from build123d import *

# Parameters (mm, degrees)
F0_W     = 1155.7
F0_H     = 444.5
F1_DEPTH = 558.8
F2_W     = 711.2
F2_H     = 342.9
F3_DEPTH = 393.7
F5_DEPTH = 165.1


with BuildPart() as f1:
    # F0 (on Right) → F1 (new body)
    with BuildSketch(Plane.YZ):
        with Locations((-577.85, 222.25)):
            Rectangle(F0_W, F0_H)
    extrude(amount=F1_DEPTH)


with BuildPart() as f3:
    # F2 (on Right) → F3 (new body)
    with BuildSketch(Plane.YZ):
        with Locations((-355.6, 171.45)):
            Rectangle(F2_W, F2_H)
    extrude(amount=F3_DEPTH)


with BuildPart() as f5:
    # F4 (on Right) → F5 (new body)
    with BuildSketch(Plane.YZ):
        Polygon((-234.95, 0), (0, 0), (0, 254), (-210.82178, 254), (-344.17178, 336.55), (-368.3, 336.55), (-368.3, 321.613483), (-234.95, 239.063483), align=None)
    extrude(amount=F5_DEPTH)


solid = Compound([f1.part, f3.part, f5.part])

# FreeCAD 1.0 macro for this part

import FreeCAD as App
import Part
import Sketcher
Q = App.Units.Quantity


def add_polygon(sketch, points):
    """Adds a closed chain of lines whose ends are joined by coincident constraints."""
    first, n = sketch.GeometryCount, len(points)
    for a, b in zip(points, points[1:] + points[:1]):
        sketch.addGeometry(Part.LineSegment(App.Vector(*a, 0), App.Vector(*b, 0)), False)
    for i in range(n):
        sketch.addConstraint(Sketcher.Constraint("Coincident", first + i, 2, first + (i + 1) % n, 1))

doc = App.newDocument("Part")
body = doc.addObject("PartDesign::Body", "Body")

sketch1 = body.newObject("Sketcher::SketchObject", "Sketch")
sketch1.AttachmentSupport = (doc.getObject("YZ_Plane"), [""])
sketch1.MapMode = "FlatFace"
add_polygon(sketch1, [(-1155.7, 444.5), (-1155.7, 0), (0, 0), (0, 444.5)])
sketch1.addConstraint([
    Sketcher.Constraint("Vertical", 0),
    Sketcher.Constraint("Horizontal", 1),
    Sketcher.Constraint("Vertical", 2),
    Sketcher.Constraint("Horizontal", 3),
    Sketcher.Constraint("Coincident", 1, 2, -1, 1),
    Sketcher.Constraint("DistanceX", 1, 1, 1, 2, Q("45.5 in")),
    Sketcher.Constraint("DistanceY", 0, 2, 0, 1, Q("17.5 in")),
])
pad1 = body.newObject("PartDesign::Pad", "Pad")
pad1.Profile = sketch1
pad1.Length = Q("22 in")
body2 = doc.addObject("PartDesign::Body", "Body001")

sketch2 = body2.newObject("Sketcher::SketchObject", "Sketch001")
sketch2.AttachmentSupport = (doc.getObject("YZ_Plane001"), [""])
sketch2.MapMode = "FlatFace"
add_polygon(sketch2, [(-711.2, 342.9), (-711.2, 0), (0, 0), (0, 342.9)])
sketch2.addConstraint([
    Sketcher.Constraint("Vertical", 0),
    Sketcher.Constraint("Horizontal", 1),
    Sketcher.Constraint("Vertical", 2),
    Sketcher.Constraint("Horizontal", 3),
    Sketcher.Constraint("Coincident", 1, 2, -1, 1),
    Sketcher.Constraint("DistanceX", 1, 1, 1, 2, Q("28 in")),
    Sketcher.Constraint("DistanceY", 0, 2, 0, 1, Q("13.5 in")),
])
pad2 = body2.newObject("PartDesign::Pad", "Pad001")
pad2.Profile = sketch2
pad2.Length = Q("15.5 in")
body3 = doc.addObject("PartDesign::Body", "Body002")

sketch3 = body3.newObject("Sketcher::SketchObject", "Sketch002")
sketch3.AttachmentSupport = (doc.getObject("YZ_Plane002"), [""])
sketch3.MapMode = "FlatFace"
add_polygon(sketch3, [(-234.95, 0), (0, 0), (0, 254), (-210.82178, 254), (-344.17178, 336.55), (-368.3, 336.55), (-368.3, 321.613483), (-234.95, 239.063483)])
sketch3.addConstraint([
    Sketcher.Constraint("Horizontal", 0),
    Sketcher.Constraint("Vertical", 1),
    Sketcher.Constraint("Horizontal", 2),
    Sketcher.Constraint("Horizontal", 4),
    Sketcher.Constraint("Vertical", 5),
    Sketcher.Constraint("Vertical", 7),
    Sketcher.Constraint("Coincident", 0, 2, -1, 1),
    Sketcher.Constraint("Parallel", 3, 6),
    Sketcher.Constraint("Equal", 3, 6),
    Sketcher.Constraint("DistanceY", 1, 1, 1, 2, Q("10 in")),
    Sketcher.Constraint("DistanceX", 0, 1, 0, 2, Q("9.25 in")),
    Sketcher.Constraint("DistanceX", 4, 2, -1, 1, Q("14.5 in")),
    Sketcher.Constraint("DistanceY", -1, 1, 3, 2, Q("13.25 in")),
    Sketcher.Constraint("DistanceX", 2, 2, 2, 1, Q("210.82178 mm")),
    Sketcher.Constraint("DistanceY", 5, 2, 5, 1, Q("14.936517 mm")),
])
pad3 = body3.newObject("PartDesign::Pad", "Pad002")
pad3.Profile = sketch3
pad3.Length = Q("6.5 in")

doc.recompute()
